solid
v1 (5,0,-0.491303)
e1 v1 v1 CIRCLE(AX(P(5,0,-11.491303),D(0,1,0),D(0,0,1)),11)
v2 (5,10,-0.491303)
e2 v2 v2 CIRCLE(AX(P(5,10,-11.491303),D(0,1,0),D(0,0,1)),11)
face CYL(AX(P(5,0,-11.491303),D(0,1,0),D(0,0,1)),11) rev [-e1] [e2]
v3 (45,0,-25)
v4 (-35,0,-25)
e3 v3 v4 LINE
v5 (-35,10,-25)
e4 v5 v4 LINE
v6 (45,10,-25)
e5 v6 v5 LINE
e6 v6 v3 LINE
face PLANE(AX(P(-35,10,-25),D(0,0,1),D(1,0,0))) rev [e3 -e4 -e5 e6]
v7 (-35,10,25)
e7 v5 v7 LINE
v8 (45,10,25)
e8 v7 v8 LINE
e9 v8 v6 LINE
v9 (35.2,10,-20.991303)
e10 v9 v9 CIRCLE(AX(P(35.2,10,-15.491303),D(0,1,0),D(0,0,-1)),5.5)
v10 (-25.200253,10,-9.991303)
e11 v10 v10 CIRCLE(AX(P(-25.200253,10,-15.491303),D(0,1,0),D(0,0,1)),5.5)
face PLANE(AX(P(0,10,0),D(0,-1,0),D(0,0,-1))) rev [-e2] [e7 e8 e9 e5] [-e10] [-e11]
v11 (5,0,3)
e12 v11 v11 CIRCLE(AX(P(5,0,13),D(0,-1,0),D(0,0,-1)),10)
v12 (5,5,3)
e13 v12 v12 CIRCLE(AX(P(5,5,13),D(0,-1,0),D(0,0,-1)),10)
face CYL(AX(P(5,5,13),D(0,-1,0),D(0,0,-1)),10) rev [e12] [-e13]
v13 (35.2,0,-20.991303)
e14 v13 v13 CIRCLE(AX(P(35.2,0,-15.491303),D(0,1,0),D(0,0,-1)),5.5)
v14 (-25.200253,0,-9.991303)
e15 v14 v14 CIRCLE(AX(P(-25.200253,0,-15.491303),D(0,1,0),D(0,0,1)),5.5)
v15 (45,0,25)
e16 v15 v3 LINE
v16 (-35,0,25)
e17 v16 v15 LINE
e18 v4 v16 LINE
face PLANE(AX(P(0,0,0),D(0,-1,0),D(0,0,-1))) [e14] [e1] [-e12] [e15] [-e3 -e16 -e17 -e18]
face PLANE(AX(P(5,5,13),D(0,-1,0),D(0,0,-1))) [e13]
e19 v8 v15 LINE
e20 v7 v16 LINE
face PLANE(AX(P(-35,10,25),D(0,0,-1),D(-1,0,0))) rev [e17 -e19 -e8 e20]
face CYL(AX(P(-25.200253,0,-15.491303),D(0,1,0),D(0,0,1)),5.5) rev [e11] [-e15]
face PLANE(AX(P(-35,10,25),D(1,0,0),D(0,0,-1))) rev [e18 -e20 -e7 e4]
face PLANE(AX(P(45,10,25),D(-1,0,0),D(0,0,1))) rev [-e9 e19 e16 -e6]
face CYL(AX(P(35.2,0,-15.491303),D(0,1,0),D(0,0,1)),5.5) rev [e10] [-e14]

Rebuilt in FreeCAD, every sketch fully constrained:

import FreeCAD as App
import Part
import Sketcher
Q = App.Units.Quantity


def add_polygon(sketch, points):
    """Adds a closed chain of lines whose ends are joined by coincident constraints."""
    first, n = sketch.GeometryCount, len(points)
    for a, b in zip(points, points[1:] + points[:1]):
        sketch.addGeometry(Part.LineSegment(App.Vector(*a, 0), App.Vector(*b, 0)), False)
    for i in range(n):
        sketch.addConstraint(Sketcher.Constraint("Coincident", first + i, 2, first + (i + 1) % n, 1))

doc = App.newDocument("Part")
body = doc.addObject("PartDesign::Body", "Body")

# Sketch on XZ plane
sketch1 = doc.addObject("Sketcher::SketchObject", "Sketch")
body.addObject(sketch1)
sketch1.AttachmentSupport = (doc.XZ_Plane, [""])
sketch1.MapMode = "FlatFace"
add_polygon(sketch1, [(-35, -25), (-35, 25), (45, 25), (45, -25)])  # lines 0-3
sketch1.addConstraint(Sketcher.Constraint("Vertical", 0))
sketch1.addConstraint(Sketcher.Constraint("Horizontal", 1))
sketch1.addConstraint(Sketcher.Constraint("Vertical", 2))
sketch1.addConstraint(Sketcher.Constraint("Horizontal", 3))
sketch1.addConstraint(Sketcher.Constraint("DistanceX", 1, 1, 1, 2, Q("80 mm")))
sketch1.addConstraint(Sketcher.Constraint("DistanceY", 0, 1, 0, 2, Q("50 mm")))
sketch1.addConstraint(Sketcher.Constraint("DistanceX", 0, 2, -1, 1, Q("35 mm")))
sketch1.addConstraint(Sketcher.Constraint("DistanceY", -1, 1, 0, 2, Q("25 mm")))
pad1 = doc.addObject("PartDesign::Pad", "Pad")
body.addObject(pad1)
pad1.Profile = sketch1
pad1.Length = 10
pad1.Reversed = True

# Sketch on XZ plane
sketch2 = doc.addObject("Sketcher::SketchObject", "Sketch001")
body.addObject(sketch2)
sketch2.AttachmentSupport = (doc.XZ_Plane, [""])
sketch2.MapMode = "FlatFace"
sketch2.AttachmentOffset = App.Placement(App.Vector(0, 0, -10), App.Rotation())
sketch2.addGeometry(Part.Circle(App.Vector(-25, -15, 0), App.Vector(0, 0, 1), 6), False)
sketch2.addGeometry(Part.Circle(App.Vector(35, -15, 0), App.Vector(0, 0, 1), 6), False)
sketch2.addGeometry(Part.Circle(App.Vector(5, -11, 0), App.Vector(0, 0, 1), 11), False)
sketch2.addConstraint(Sketcher.Constraint("Equal", 0, 1))
sketch2.addConstraint(Sketcher.Constraint("Horizontal", 0, 3, 1, 3))
sketch2.addConstraint(Sketcher.Constraint("Diameter", 0, Q("11 mm")))
sketch2.addConstraint(Sketcher.Constraint("Diameter", 2, Q("22 mm")))
sketch2.addConstraint(Sketcher.Constraint("DistanceX", -1, 1, 2, 3, Q("5 mm")))
sketch2.addConstraint(Sketcher.Constraint("DistanceY", 1, 3, 2, 3, Q("4 mm")))
sketch2.addConstraint(Sketcher.Constraint("DistanceX", -1, 1, 1, 3, Q("35.2 mm")))
sketch2.addConstraint(Sketcher.Constraint("DistanceX", 0, 3, -1, 1, Q("25.200253 mm")))
sketch2.addConstraint(Sketcher.Constraint("DistanceY", 0, 3, -1, 1, Q("15.491303 mm")))
pocket1 = doc.addObject("PartDesign::Pocket", "Pocket")
body.addObject(pocket1)
pocket1.Profile = sketch2
pocket1.Type = "ThroughAll"
pocket1.Reversed = True

# Sketch on XZ plane
sketch3 = doc.addObject("Sketcher::SketchObject", "Sketch002")
body.addObject(sketch3)
sketch3.AttachmentSupport = (doc.XZ_Plane, [""])
sketch3.MapMode = "FlatFace"
sketch3.addGeometry(Part.Circle(App.Vector(5, 13, 0), App.Vector(0, 0, 1), 10), False)
sketch3.addConstraint(Sketcher.Constraint("Diameter", 0, Q("20 mm")))
sketch3.addConstraint(Sketcher.Constraint("DistanceX", -1, 1, 0, 3, Q("5 mm")))
sketch3.addConstraint(Sketcher.Constraint("DistanceY", -1, 1, 0, 3, Q("13 mm")))
pocket2 = doc.addObject("PartDesign::Pocket", "Pocket001")
body.addObject(pocket2)
pocket2.Profile = sketch3
pocket2.Length = 5

doc.recompute()
